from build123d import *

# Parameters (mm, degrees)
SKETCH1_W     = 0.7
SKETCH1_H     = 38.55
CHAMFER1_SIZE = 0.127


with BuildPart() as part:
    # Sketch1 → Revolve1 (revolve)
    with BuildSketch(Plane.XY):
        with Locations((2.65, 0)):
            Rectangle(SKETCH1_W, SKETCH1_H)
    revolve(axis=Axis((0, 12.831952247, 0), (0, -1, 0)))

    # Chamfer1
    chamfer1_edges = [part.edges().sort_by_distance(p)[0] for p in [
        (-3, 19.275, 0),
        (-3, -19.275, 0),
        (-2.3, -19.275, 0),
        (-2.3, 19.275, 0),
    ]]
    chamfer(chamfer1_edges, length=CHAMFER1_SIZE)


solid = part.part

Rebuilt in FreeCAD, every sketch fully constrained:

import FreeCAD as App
import Part
import Sketcher
from FreeCAD import Vector


def edges_at(feature, points):
    """Names of the edges that pass closest to the given points."""
    edges = feature.Shape.Edges
    near = lambda p: min(range(len(edges)), key=lambda i: edges[i].distToShape(Part.Vertex(*p))[0])
    return sorted({f"Edge{near(p) + 1}" for p in points})

doc = App.newDocument("Part")
body = doc.addObject("PartDesign::Body", "Body")

# Sketch on XY plane
sketch1 = body.newObject("Sketcher::SketchObject", "Sketch")
sketch1.AttachmentSupport = (doc.getObject("XY_Plane"), [""])
sketch1.MapMode = "FlatFace"
sketch1.addGeometry([
    Part.LineSegment(Vector(2.3, 19.3, 0), Vector(2.3, -19.3, 0)),
    Part.LineSegment(Vector(2.3, -19.3, 0), Vector(3, -19.3, 0)),
    Part.LineSegment(Vector(3, -19.3, 0), Vector(3, 19.3, 0)),
    Part.LineSegment(Vector(3, 19.3, 0), Vector(2.3, 19.3, 0)),
], False)
sketch1.addConstraint([
    Sketcher.Constraint("Coincident", 0, 2, 1, 1),
    Sketcher.Constraint("Coincident", 1, 2, 2, 1),
    Sketcher.Constraint("Coincident", 2, 2, 3, 1),
    Sketcher.Constraint("Coincident", 3, 2, 0, 1),
    Sketcher.Constraint("Vertical", 0),
    Sketcher.Constraint("Horizontal", 1),
    Sketcher.Constraint("Vertical", 2),
    Sketcher.Constraint("Horizontal", 3),
    Sketcher.Constraint("DistanceX", 1, 1, 1, 2, 0.7),
    Sketcher.Constraint("DistanceX", -1, 1, 1, 2, 3.0),
    Sketcher.Constraint("DistanceY", 0, 2, 0, 1, 38.55),
    Sketcher.Constraint("DistanceY", 0, 2, -1, 1, 19.275),
])
revolution = body.newObject("PartDesign::Revolution", "Revolution")
revolution.Profile = sketch1
revolution.ReferenceAxis = (sketch1, ["V_Axis"])
revolution.Angle = 360
doc.recompute()

chamfer = body.newObject("PartDesign::Chamfer", "Chamfer")
chamfer.Base = (revolution, edges_at(revolution, [
    (-3, 19.275, 0),
    (-3, -19.275, 0),
    (-2.3, -19.275, 0),
    (-2.3, 19.275, 0),
]))
chamfer.Size = 0.127

doc.recompute()
